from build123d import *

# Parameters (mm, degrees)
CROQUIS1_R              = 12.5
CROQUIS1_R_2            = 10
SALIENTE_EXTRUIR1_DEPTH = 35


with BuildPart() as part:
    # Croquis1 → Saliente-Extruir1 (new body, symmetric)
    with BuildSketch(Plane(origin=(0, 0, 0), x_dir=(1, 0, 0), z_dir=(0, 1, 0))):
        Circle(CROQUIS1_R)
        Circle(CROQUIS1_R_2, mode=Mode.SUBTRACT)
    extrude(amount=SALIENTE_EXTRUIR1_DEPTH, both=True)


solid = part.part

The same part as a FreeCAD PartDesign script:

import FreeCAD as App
import Part
import Sketcher
from FreeCAD import Vector
Q = App.Units.Quantity

doc = App.newDocument("Part")
body = doc.addObject("PartDesign::Body", "Body")

# Sketch on XZ plane
sketch1 = body.newObject("Sketcher::SketchObject", "Sketch")
sketch1.AttachmentSupport = (doc.getObject("XZ_Plane"), [""])
sketch1.MapMode = "FlatFace"
sketch1.addGeometry([
    Part.Circle(Vector(0, 0, 0), Vector(0, 0, 1), 12),
    Part.Circle(Vector(0, 0, 0), Vector(0, 0, 1), 10),
], False)
sketch1.addConstraint([
    Sketcher.Constraint("Coincident", 0, 3, -1, 1),
    Sketcher.Constraint("Coincident", 1, 3, -1, 1),
    Sketcher.Constraint("Diameter", 0, Q("25 mm")),
    Sketcher.Constraint("Diameter", 1, Q("20 mm")),
])
pad1 = body.newObject("PartDesign::Pad", "Pad")
pad1.Profile = sketch1
pad1.Length = 70
pad1.Midplane = True

doc.recompute()
